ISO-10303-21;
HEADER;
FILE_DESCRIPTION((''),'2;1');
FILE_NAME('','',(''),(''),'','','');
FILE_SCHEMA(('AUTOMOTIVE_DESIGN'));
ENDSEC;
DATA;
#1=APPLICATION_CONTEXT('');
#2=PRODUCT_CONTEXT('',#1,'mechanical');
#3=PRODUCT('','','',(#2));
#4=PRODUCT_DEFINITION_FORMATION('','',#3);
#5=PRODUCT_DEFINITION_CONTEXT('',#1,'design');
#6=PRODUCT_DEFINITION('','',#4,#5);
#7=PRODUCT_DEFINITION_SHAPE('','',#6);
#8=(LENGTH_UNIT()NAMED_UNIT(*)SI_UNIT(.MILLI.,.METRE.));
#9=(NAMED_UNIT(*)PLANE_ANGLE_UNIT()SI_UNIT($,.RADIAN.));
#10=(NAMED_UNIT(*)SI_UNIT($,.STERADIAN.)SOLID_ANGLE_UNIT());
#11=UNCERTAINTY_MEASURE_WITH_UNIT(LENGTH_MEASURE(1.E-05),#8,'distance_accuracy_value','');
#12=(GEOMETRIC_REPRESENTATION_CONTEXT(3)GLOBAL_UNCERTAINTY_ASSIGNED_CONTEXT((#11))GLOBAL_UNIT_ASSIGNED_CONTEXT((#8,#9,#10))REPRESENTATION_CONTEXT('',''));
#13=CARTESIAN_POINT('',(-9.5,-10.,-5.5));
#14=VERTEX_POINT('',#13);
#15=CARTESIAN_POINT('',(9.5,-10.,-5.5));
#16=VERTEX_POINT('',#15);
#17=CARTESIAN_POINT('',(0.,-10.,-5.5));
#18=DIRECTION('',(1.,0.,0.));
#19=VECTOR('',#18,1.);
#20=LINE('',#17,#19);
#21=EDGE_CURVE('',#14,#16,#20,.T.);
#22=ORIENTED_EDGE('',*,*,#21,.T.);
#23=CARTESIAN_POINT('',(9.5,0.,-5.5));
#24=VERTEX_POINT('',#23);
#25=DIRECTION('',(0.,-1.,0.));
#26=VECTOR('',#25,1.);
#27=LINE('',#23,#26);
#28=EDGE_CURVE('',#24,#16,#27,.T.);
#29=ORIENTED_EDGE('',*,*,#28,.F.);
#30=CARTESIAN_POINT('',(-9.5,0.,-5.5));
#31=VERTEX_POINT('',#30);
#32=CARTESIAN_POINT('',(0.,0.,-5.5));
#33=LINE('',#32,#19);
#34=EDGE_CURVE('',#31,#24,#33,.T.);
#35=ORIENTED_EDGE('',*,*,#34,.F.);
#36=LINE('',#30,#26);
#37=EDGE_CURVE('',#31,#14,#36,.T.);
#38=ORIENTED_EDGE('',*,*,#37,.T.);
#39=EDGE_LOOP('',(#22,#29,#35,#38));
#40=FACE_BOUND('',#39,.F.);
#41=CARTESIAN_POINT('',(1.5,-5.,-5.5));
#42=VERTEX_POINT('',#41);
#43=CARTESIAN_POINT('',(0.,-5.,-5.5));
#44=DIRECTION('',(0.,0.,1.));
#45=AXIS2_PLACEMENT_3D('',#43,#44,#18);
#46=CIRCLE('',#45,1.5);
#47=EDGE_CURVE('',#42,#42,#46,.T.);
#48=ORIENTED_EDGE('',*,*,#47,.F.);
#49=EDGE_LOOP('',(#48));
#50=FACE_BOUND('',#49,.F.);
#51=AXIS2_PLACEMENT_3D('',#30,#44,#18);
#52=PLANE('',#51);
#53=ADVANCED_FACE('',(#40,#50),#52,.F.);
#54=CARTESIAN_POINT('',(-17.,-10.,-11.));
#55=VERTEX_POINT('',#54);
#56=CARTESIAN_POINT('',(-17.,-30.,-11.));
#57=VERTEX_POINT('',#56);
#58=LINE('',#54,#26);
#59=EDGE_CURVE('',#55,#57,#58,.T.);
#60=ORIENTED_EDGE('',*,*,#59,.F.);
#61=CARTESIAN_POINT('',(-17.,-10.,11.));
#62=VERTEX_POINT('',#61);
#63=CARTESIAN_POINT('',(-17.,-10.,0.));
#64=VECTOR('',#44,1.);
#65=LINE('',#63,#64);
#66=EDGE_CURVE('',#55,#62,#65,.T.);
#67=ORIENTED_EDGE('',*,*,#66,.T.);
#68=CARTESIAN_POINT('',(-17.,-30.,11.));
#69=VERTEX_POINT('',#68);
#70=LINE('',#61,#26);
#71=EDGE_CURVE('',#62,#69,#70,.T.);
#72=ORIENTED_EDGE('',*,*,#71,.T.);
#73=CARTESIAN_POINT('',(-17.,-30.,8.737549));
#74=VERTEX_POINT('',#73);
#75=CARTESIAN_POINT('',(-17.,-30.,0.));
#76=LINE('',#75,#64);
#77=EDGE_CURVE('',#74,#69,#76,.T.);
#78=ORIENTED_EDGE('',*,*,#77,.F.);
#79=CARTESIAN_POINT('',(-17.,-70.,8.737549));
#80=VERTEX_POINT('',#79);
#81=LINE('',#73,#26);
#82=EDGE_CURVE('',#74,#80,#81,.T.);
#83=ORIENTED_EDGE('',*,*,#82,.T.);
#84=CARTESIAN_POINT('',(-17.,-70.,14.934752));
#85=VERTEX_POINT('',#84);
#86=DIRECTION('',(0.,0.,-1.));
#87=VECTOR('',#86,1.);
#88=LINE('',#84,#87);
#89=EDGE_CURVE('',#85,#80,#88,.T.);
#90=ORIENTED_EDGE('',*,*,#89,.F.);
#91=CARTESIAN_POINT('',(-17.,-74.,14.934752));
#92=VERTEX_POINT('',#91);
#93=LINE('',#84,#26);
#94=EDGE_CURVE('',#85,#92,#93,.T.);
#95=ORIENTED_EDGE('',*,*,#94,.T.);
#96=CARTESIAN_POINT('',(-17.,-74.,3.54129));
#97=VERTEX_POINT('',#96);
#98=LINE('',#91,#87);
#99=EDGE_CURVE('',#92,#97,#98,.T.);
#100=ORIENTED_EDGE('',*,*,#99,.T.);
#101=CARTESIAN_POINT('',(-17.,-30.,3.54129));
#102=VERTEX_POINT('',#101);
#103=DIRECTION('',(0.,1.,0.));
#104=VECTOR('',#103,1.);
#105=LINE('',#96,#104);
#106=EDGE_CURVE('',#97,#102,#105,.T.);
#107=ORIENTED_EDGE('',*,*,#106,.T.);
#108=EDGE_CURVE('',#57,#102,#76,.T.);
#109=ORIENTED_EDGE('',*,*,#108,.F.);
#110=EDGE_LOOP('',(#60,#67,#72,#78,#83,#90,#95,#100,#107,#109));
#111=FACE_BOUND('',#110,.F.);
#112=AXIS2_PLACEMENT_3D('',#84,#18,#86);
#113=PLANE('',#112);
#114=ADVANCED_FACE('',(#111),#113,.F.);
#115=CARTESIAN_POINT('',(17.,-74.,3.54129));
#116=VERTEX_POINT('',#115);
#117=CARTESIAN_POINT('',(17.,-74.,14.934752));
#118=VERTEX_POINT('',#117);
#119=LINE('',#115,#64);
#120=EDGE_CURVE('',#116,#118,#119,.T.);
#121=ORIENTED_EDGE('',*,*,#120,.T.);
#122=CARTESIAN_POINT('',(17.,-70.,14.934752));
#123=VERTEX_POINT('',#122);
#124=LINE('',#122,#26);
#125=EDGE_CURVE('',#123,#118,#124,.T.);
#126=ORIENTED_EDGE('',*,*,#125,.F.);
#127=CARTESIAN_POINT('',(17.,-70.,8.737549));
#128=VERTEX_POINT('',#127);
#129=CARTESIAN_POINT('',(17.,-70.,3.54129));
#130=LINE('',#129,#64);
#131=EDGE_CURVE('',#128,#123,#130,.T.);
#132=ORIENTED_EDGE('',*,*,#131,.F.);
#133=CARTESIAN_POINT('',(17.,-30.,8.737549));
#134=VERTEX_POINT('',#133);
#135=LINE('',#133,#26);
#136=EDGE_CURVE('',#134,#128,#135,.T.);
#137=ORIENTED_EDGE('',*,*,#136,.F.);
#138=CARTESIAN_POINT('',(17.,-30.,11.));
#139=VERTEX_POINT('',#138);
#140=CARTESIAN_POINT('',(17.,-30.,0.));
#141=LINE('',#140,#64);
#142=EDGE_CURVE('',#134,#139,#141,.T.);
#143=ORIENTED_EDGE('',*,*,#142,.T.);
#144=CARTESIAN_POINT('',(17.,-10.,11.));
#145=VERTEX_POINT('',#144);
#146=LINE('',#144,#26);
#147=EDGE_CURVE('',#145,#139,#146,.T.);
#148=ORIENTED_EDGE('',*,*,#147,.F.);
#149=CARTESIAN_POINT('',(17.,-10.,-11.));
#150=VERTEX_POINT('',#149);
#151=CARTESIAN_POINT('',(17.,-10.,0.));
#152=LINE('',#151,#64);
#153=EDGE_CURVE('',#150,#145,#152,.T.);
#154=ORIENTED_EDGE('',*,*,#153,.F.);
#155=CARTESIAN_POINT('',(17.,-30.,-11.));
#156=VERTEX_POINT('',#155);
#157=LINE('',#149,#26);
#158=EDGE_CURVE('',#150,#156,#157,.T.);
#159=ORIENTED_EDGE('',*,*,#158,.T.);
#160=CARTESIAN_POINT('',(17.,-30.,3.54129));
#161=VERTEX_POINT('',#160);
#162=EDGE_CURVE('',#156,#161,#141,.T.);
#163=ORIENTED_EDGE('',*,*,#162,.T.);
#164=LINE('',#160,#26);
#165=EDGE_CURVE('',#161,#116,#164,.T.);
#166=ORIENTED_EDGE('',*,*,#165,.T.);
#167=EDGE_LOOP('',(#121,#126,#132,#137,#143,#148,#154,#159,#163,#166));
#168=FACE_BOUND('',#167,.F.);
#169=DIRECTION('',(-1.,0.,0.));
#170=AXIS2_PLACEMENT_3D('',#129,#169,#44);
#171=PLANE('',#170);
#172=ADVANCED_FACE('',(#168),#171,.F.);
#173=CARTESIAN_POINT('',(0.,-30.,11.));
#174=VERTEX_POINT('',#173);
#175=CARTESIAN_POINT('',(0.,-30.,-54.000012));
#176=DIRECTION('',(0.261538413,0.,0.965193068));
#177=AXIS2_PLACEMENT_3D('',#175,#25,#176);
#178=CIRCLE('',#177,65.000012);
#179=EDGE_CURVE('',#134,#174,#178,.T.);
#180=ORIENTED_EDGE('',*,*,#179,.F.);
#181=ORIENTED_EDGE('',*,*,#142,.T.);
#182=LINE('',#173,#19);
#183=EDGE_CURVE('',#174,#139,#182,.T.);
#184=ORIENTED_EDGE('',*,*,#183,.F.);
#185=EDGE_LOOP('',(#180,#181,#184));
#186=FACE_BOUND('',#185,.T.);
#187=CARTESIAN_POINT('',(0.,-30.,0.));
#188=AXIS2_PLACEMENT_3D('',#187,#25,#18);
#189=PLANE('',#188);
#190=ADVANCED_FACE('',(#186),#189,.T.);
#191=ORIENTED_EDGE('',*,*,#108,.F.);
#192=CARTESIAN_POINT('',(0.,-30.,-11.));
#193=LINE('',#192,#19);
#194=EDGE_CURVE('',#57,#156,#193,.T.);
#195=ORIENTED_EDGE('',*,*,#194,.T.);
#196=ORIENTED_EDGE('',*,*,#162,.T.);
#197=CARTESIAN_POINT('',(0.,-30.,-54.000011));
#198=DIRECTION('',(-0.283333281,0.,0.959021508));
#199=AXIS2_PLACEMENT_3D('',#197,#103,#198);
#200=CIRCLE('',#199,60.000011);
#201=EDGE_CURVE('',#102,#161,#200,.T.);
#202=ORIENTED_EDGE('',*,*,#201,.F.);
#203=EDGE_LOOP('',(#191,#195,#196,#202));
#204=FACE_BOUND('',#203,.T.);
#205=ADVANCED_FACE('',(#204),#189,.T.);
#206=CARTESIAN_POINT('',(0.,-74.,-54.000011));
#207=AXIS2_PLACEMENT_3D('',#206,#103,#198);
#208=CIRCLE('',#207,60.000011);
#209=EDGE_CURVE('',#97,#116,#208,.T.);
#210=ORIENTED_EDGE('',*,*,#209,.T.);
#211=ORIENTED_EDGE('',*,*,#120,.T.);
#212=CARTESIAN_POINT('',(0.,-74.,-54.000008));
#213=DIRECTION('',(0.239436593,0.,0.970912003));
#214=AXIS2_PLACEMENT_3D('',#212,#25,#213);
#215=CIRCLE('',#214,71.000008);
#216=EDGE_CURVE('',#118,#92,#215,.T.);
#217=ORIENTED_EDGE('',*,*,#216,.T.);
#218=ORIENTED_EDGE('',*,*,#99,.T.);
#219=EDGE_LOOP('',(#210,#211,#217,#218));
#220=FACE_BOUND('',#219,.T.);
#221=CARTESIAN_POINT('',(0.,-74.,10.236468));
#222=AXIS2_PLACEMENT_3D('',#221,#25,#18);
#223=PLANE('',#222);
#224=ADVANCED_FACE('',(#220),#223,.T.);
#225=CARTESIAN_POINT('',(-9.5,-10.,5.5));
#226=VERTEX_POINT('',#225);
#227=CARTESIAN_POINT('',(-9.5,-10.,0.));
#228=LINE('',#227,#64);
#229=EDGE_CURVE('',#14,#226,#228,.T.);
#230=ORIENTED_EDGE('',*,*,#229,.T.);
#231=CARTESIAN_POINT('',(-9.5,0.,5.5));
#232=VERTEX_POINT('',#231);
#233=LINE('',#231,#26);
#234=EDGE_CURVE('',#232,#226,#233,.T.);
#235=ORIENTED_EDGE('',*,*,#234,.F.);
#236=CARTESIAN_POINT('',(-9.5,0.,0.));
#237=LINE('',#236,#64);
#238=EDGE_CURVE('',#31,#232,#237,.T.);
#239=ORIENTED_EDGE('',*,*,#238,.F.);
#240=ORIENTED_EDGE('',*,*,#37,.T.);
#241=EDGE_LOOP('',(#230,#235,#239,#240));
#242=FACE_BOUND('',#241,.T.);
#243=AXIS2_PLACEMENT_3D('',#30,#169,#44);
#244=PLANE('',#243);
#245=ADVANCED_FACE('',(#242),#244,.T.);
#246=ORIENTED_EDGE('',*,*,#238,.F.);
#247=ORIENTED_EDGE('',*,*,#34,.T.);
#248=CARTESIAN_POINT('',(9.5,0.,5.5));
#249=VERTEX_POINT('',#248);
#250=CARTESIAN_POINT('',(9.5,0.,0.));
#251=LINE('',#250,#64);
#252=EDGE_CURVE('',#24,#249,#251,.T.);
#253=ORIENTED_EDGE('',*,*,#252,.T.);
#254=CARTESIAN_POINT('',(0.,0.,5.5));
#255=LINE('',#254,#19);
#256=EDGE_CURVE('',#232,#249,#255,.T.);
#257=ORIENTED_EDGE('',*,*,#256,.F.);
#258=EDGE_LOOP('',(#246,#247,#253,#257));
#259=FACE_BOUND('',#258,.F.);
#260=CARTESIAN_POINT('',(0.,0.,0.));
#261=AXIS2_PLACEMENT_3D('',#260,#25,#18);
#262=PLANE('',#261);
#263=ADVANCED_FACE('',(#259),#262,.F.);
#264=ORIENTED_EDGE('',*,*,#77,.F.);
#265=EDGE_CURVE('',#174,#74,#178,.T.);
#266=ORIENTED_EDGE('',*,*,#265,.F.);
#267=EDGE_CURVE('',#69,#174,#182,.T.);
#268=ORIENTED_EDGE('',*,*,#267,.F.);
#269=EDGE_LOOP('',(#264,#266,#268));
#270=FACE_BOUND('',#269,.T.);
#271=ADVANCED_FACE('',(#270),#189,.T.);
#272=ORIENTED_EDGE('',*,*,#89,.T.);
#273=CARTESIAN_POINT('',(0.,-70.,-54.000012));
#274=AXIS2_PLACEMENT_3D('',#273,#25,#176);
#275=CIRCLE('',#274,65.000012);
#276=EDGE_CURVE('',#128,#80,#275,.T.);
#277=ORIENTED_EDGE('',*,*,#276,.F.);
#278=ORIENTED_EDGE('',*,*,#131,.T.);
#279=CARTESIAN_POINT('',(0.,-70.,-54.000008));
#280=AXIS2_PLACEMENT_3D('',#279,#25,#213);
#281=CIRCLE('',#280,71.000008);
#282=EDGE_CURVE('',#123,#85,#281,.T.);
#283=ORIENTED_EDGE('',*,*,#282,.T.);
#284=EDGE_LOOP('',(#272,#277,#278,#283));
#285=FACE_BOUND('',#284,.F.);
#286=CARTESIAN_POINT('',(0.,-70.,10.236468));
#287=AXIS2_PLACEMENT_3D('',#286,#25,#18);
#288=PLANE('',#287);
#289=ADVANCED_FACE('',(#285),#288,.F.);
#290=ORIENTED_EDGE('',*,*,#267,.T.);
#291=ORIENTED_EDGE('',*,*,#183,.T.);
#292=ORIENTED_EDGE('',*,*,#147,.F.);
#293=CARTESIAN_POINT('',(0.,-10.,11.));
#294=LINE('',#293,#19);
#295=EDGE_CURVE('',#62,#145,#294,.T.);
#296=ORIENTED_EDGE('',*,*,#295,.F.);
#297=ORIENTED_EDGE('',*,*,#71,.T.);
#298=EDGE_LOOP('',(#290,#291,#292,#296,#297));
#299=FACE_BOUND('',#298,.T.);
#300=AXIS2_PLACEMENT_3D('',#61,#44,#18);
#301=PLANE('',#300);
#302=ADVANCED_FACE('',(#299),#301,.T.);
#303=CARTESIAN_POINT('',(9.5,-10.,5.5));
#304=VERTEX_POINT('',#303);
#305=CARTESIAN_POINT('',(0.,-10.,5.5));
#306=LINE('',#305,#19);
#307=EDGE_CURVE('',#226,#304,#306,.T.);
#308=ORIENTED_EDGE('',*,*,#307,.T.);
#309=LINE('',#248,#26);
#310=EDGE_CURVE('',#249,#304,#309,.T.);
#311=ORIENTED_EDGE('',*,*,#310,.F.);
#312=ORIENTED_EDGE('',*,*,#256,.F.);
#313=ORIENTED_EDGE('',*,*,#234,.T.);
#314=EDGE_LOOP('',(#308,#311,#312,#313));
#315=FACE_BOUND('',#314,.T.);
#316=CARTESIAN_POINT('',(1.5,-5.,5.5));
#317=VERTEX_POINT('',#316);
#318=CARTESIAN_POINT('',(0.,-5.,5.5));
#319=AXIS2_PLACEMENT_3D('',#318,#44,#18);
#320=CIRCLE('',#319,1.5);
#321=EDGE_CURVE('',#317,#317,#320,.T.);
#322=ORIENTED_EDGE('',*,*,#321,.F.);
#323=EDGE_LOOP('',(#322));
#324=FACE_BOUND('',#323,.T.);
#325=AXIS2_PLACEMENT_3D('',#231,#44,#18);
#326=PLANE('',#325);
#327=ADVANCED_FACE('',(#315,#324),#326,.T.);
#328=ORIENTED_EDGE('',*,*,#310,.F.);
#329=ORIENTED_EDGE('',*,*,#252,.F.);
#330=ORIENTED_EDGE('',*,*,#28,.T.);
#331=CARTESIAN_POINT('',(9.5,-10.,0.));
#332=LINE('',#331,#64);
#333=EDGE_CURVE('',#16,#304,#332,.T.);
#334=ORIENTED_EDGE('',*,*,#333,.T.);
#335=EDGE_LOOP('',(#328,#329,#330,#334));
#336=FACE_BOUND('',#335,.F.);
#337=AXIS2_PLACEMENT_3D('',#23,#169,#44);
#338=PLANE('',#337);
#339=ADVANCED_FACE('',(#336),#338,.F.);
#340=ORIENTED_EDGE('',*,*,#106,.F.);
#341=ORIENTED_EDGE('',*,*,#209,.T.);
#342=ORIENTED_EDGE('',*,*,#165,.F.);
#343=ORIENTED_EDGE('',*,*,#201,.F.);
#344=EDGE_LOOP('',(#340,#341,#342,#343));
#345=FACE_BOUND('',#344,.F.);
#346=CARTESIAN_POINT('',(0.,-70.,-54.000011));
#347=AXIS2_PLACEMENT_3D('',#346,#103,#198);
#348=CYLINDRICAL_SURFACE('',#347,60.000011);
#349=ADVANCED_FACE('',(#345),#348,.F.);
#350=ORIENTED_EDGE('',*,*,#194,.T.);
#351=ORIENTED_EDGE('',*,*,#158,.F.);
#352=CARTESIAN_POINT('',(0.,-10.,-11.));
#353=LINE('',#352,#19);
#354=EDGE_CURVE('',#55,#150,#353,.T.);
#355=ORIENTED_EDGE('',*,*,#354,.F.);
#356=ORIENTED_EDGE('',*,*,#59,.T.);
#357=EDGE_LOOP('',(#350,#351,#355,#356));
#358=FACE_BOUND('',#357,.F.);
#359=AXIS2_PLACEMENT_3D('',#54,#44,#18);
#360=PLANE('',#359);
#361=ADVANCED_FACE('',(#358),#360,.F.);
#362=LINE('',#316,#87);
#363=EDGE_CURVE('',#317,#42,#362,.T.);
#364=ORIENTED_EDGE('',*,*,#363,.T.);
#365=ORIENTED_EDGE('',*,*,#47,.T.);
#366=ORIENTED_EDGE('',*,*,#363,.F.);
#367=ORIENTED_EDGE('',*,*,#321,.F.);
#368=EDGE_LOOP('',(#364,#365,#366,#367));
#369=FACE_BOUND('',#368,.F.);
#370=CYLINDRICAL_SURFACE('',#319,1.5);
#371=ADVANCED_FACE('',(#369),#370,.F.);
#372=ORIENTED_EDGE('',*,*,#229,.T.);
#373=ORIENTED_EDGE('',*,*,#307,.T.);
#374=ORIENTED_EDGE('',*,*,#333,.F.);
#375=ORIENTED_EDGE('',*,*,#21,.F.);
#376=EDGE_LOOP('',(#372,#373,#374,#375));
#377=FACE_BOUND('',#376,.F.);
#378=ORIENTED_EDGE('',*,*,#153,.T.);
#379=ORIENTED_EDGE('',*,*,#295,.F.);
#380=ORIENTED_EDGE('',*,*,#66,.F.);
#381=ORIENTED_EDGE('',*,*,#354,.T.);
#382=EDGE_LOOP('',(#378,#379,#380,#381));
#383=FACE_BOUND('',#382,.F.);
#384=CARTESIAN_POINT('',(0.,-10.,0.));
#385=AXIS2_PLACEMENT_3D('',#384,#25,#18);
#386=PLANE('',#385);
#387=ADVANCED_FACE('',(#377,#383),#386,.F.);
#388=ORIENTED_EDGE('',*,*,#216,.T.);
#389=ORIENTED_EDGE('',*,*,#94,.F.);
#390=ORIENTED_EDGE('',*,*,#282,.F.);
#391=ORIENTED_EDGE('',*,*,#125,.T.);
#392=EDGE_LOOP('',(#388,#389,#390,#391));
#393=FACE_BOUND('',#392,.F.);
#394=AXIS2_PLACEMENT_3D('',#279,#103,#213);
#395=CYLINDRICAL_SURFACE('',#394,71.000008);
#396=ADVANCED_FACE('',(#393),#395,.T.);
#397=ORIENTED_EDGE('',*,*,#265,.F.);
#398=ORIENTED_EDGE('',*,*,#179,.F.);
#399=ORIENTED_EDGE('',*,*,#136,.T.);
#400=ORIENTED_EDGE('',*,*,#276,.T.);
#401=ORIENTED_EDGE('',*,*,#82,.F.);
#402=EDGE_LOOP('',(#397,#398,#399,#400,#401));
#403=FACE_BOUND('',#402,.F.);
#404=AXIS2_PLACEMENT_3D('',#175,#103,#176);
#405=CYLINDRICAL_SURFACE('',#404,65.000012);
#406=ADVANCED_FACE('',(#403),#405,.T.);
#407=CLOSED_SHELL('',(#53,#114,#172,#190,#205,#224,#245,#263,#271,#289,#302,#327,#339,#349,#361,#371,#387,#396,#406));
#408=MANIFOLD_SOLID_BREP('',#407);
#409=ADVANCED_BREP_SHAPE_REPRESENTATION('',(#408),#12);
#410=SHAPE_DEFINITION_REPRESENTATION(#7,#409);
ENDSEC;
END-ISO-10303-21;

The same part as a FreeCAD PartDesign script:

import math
import FreeCAD as App
import Part
import Sketcher

V = App.Vector


def add_polygon(sketch, points):
    """Adds a closed chain of lines whose ends are joined by coincident constraints."""
    first, n = sketch.GeometryCount, len(points)
    for a, b in zip(points, points[1:] + points[:1]):
        sketch.addGeometry(Part.LineSegment(App.Vector(*a, 0), App.Vector(*b, 0)), False)
    for i in range(n):
        sketch.addConstraint(Sketcher.Constraint("Coincident", first + i, 2, first + (i + 1) % n, 1))

doc = App.newDocument("Part")
params = doc.addObject("Spreadsheet::Sheet", "Params")
for row, (alias, value) in enumerate([
    ("sketch1_width", "19 mm"),
    ("sketch1_height", "11 mm"),
    ("pad1_length", "10 mm"),
    ("sketch2_width", "34 mm"),
    ("sketch2_height", "22 mm"),
    ("pad2_length", "20 mm"),
    ("pad3_length", "40 mm"),
    ("pad4_length", "4 mm"),
    ("sketch5_diameter", "3 mm"),
], start=1):
    params.set(f"A{row}", alias)
    params.set(f"B{row}", "=" + value)
    params.setAlias(f"B{row}", alias)

body = doc.addObject("PartDesign::Body", "Body")

# Sketch on XZ plane
sketch1 = body.newObject("Sketcher::SketchObject", "Sketch")
sketch1.AttachmentSupport = (doc.getObject("XZ_Plane"), [""])
sketch1.MapMode = "FlatFace"
add_polygon(sketch1, [(-10, 6), (-10, -6), (10, -6), (10, 6)])  # lines 0-3
sketch1.addConstraint([
    Sketcher.Constraint("Vertical", 0),
    Sketcher.Constraint("Horizontal", 1),
    Sketcher.Constraint("Vertical", 2),
    Sketcher.Constraint("Horizontal", 3),
    Sketcher.Constraint("Symmetric", 0, 2, 2, 2, -1, 1),
    Sketcher.Constraint("DistanceX", 1, 1, 1, 2, 19.0),
    Sketcher.Constraint("DistanceY", 0, 2, 0, 1, 11.0),
])
sketch1.setExpression("Constraints[9]", "Params.sketch1_width")
sketch1.setExpression("Constraints[10]", "Params.sketch1_height")
pad1 = body.newObject("PartDesign::Pad", "Pad")
pad1.Profile = sketch1
pad1.setExpression("Length", "Params.pad1_length")

# Sketch on XZ plane
sketch2 = body.newObject("Sketcher::SketchObject", "Sketch001")
sketch2.AttachmentSupport = (doc.getObject("XZ_Plane"), [""])
sketch2.MapMode = "FlatFace"
sketch2.AttachmentOffset = App.Placement(V(0, 0, 10), App.Rotation())
add_polygon(sketch2, [(-17, 11), (-17, -11), (17, -11), (17, 11)])  # lines 0-3
sketch2.addConstraint([
    Sketcher.Constraint("Vertical", 0),
    Sketcher.Constraint("Horizontal", 1),
    Sketcher.Constraint("Vertical", 2),
    Sketcher.Constraint("Horizontal", 3),
    Sketcher.Constraint("Symmetric", 0, 2, 2, 2, -1, 1),
    Sketcher.Constraint("DistanceX", 1, 1, 1, 2, 34.0),
    Sketcher.Constraint("DistanceY", 0, 2, 0, 1, 22.0),
])
sketch2.setExpression("Constraints[9]", "Params.sketch2_width")
sketch2.setExpression("Constraints[10]", "Params.sketch2_height")
pad2 = body.newObject("PartDesign::Pad", "Pad001")
pad2.Profile = sketch2
pad2.setExpression("Length", "Params.pad2_length")

# Sketch on XZ plane
sketch3 = body.newObject("Sketcher::SketchObject", "Sketch002")
sketch3.AttachmentSupport = (doc.getObject("XZ_Plane"), [""])
sketch3.MapMode = "FlatFace"
sketch3.AttachmentOffset = App.Placement(V(0, 0, 30), App.Rotation())
sketch3.addGeometry([
    Part.LineSegment(V(17, 4, 0), V(17, 9, 0)),
    Part.ArcOfCircle(Part.Circle(V(0, -54, 0), V(0, 0, 1), 65), math.radians(75), math.radians(105)),
    Part.LineSegment(V(-17, 9, 0), V(-17, 4, 0)),
    Part.ArcOfCircle(Part.Circle(V(0, -54, 0), V(0, 0, 1), 60), math.radians(74), math.radians(106)),
], False)
sketch3.addConstraint([
    Sketcher.Constraint("Coincident", 0, 2, 1, 1),
    Sketcher.Constraint("Coincident", 1, 2, 2, 1),
    Sketcher.Constraint("Coincident", 2, 2, 3, 2),
    Sketcher.Constraint("Coincident", 3, 1, 0, 1),
    Sketcher.Constraint("Vertical", 0),
    Sketcher.Constraint("Vertical", 2),
    Sketcher.Constraint("Coincident", 3, 3, 1, 3),
    Sketcher.Constraint("Symmetric", 0, 2, 1, 2, -2),
    Sketcher.Constraint("DistanceX", -1, 1, 0, 2, 17.0),
    Sketcher.Constraint("Radius", 3, 60.000011),
    Sketcher.Constraint("Radius", 1, 65.000012),
    Sketcher.Constraint("DistanceY", 3, 3, -1, 1, 54.000011),
])
pad3 = body.newObject("PartDesign::Pad", "Pad002")
pad3.Profile = sketch3
pad3.setExpression("Length", "Params.pad3_length")

# Sketch on XZ plane
sketch4 = body.newObject("Sketcher::SketchObject", "Sketch003")
sketch4.AttachmentSupport = (doc.getObject("XZ_Plane"), [""])
sketch4.MapMode = "FlatFace"
sketch4.AttachmentOffset = App.Placement(V(0, 0, 70), App.Rotation())
sketch4.addGeometry([
    Part.ArcOfCircle(Part.Circle(V(0, -54, 0), V(0, 0, 1), 60), math.radians(74), math.radians(106)),
    Part.LineSegment(V(17, 4, 0), V(17, 15, 0)),
    Part.ArcOfCircle(Part.Circle(V(0, -54, 0), V(0, 0, 1), 71), math.radians(76), math.radians(104)),
    Part.LineSegment(V(-17, 15, 0), V(-17, 4, 0)),
], False)
sketch4.addConstraint([
    Sketcher.Constraint("Coincident", 0, 1, 1, 1),
    Sketcher.Constraint("Coincident", 1, 2, 2, 1),
    Sketcher.Constraint("Coincident", 2, 2, 3, 1),
    Sketcher.Constraint("Coincident", 3, 2, 0, 2),
    Sketcher.Constraint("Vertical", 1),
    Sketcher.Constraint("Vertical", 3),
    Sketcher.Constraint("Coincident", 2, 3, 0, 3),
    Sketcher.Constraint("Symmetric", 1, 2, 2, 2, -2),
    Sketcher.Constraint("DistanceX", -1, 1, 0, 1, 17.0),
    Sketcher.Constraint("Radius", 0, 60.000011),
    Sketcher.Constraint("Radius", 2, 71.000008),
    Sketcher.Constraint("DistanceY", 0, 3, -1, 1, 54.000011),
])
pad4 = body.newObject("PartDesign::Pad", "Pad003")
pad4.Profile = sketch4
pad4.setExpression("Length", "Params.pad4_length")

# Sketch on XY plane
sketch5 = body.newObject("Sketcher::SketchObject", "Sketch004")
sketch5.AttachmentSupport = (doc.getObject("XY_Plane"), [""])
sketch5.MapMode = "FlatFace"
sketch5.AttachmentOffset = App.Placement(V(0, 0, 5.5), App.Rotation())
sketch5.addGeometry(Part.Circle(V(0, -5, 0), V(0, 0, 1), 1.5), False)
sketch5.addConstraint([
    Sketcher.Constraint("PointOnObject", 0, 3, -2),
    Sketcher.Constraint("Diameter", 0, 3.0),
    Sketcher.Constraint("DistanceY", 0, 3, -1, 1, 5.0),
])
sketch5.setExpression("Constraints[1]", "Params.sketch5_diameter")
pocket1 = body.newObject("PartDesign::Pocket", "Pocket")
pocket1.Profile = sketch5
pocket1.Type = "ThroughAll"

doc.recompute()
